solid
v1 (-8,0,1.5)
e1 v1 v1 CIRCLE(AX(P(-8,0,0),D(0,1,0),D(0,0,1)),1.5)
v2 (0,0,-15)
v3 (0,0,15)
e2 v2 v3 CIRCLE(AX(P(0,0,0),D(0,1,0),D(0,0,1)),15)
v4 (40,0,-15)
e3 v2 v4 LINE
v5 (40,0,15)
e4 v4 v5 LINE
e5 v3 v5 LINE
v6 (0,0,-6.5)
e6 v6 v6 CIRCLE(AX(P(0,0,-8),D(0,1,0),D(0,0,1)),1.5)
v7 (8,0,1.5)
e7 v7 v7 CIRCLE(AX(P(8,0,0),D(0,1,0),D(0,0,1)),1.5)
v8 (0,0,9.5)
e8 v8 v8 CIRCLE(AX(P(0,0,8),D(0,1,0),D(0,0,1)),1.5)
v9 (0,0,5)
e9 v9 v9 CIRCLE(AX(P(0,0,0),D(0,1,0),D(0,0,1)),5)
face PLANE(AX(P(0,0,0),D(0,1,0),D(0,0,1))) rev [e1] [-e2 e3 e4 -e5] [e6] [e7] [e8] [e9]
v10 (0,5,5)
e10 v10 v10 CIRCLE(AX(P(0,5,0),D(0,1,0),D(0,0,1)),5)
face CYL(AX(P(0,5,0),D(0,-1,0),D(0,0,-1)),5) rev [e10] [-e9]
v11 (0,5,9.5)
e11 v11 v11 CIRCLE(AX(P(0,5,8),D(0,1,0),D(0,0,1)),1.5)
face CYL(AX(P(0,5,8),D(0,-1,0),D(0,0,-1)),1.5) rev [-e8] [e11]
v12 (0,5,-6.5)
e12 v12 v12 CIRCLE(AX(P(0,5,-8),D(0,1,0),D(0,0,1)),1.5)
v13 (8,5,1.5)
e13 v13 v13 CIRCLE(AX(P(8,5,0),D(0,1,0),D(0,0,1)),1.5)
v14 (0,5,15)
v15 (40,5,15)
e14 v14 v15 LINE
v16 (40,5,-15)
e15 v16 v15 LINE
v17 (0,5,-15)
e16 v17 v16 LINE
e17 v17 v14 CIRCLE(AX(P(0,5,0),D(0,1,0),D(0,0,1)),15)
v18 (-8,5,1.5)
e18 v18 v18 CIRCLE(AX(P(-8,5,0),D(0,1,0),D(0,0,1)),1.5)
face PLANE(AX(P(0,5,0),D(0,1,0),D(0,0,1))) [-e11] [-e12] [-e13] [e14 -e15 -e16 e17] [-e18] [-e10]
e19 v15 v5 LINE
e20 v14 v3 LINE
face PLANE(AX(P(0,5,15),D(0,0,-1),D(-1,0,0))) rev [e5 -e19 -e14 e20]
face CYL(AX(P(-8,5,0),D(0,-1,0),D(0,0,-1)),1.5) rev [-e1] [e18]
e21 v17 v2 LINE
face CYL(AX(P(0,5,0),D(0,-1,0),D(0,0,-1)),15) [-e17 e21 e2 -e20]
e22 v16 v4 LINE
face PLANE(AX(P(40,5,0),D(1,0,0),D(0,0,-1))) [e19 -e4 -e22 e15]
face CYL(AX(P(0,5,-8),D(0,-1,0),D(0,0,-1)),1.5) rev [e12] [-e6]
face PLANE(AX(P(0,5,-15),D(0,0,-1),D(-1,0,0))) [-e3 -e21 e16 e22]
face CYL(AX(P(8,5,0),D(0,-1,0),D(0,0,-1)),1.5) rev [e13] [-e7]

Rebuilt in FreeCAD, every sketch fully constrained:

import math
import FreeCAD as App
import Part
import Sketcher

V = App.Vector
Q = App.Units.Quantity

doc = App.newDocument("Part")
body = doc.addObject("PartDesign::Body", "Body")

# Sketch on XZ plane
sketch1 = body.newObject("Sketcher::SketchObject", "Sketch")
sketch1.AttachmentSupport = (doc.getObject("XZ_Plane"), [""])
sketch1.MapMode = "FlatFace"
sketch1.addGeometry([
    Part.ArcOfCircle(Part.Circle(V(0, 0, 0), V(0, 0, 1), 15), math.radians(90), math.radians(270)),  # 0
    Part.LineSegment(V(0, 15, 0), V(40, 15, 0)),  # 1
    Part.LineSegment(V(40, 15, 0), V(40, -15, 0)),  # 2
    Part.LineSegment(V(40, -15, 0), V(0, -15, 0)),  # 3
    Part.ArcOfCircle(Part.Circle(V(0, -8, 0), V(0, 0, 1), 1.5), math.radians(175), math.radians(270)),  # 4
    Part.ArcOfCircle(Part.Circle(V(0, -8, 0), V(0, 0, 1), 1.5), math.radians(-90), math.radians(0)),  # 5
    Part.ArcOfCircle(Part.Circle(V(0, -8, 0), V(0, 0, 1), 1.5), math.radians(0), math.radians(5.38)),  # 6
    Part.ArcOfCircle(Part.Circle(V(0, -8, 0), V(0, 0, 1), 1.5), math.radians(5), math.radians(90)),  # 7
    Part.ArcOfCircle(Part.Circle(V(0, -8, 0), V(0, 0, 1), 1.5), math.radians(90), math.radians(175)),  # 8
    Part.ArcOfCircle(Part.Circle(V(8, 0, 0), V(0, 0, 1), 1.5), math.radians(-95), math.radians(0)),  # 9
    Part.ArcOfCircle(Part.Circle(V(8, 0, 0), V(0, 0, 1), 1.5), math.radians(0), math.radians(95)),  # 10
    Part.ArcOfCircle(Part.Circle(V(8, 0, 0), V(0, 0, 1), 1.5), math.radians(95), math.radians(265)),  # 11
    Part.ArcOfCircle(Part.Circle(V(0, 8, 0), V(0, 0, 1), 1.5), math.radians(-5.38), math.radians(0)),  # 12
    Part.ArcOfCircle(Part.Circle(V(0, 8, 0), V(0, 0, 1), 1.5), math.radians(0), math.radians(90)),  # 13
    Part.ArcOfCircle(Part.Circle(V(0, 8, 0), V(0, 0, 1), 1.5), math.radians(90), math.radians(185)),  # 14
    Part.ArcOfCircle(Part.Circle(V(0, 8, 0), V(0, 0, 1), 1.5), math.radians(-175), math.radians(-90)),  # 15
    Part.ArcOfCircle(Part.Circle(V(0, 8, 0), V(0, 0, 1), 1.5), math.radians(-90), math.radians(-5)),  # 16
    Part.ArcOfCircle(Part.Circle(V(0, 0, 0), V(0, 0, 1), 5), math.radians(90), math.radians(270)),  # 17
    Part.ArcOfCircle(Part.Circle(V(0, 0, 0), V(0, 0, 1), 5), math.radians(-90), math.radians(0)),  # 18
    Part.ArcOfCircle(Part.Circle(V(0, 0, 0), V(0, 0, 1), 5), math.radians(0), math.radians(90)),  # 19
    Part.ArcOfCircle(Part.Circle(V(-8, 0, 0), V(0, 0, 1), 1.5), math.radians(85), math.radians(275)),  # 20
    Part.ArcOfCircle(Part.Circle(V(-8, 0, 0), V(0, 0, 1), 1.5), math.radians(-85), math.radians(0)),  # 21
    Part.ArcOfCircle(Part.Circle(V(-8, 0, 0), V(0, 0, 1), 1.5), math.radians(0), math.radians(85)),  # 22
], False)
sketch1.addConstraint([
    Sketcher.Constraint("Tangent", 0, 1, 1, 1),
    Sketcher.Constraint("Coincident", 1, 2, 2, 1),
    Sketcher.Constraint("Coincident", 2, 2, 3, 1),
    Sketcher.Constraint("Tangent", 3, 2, 0, 2),
    Sketcher.Constraint("Tangent", 4, 2, 5, 1),
    Sketcher.Constraint("Tangent", 5, 2, 6, 1),
    Sketcher.Constraint("Tangent", 6, 2, 7, 1),
    Sketcher.Constraint("Tangent", 7, 2, 8, 1),
    Sketcher.Constraint("Tangent", 8, 2, 4, 1),
    Sketcher.Constraint("Tangent", 9, 2, 10, 1),
    Sketcher.Constraint("Tangent", 10, 2, 11, 1),
    Sketcher.Constraint("Tangent", 11, 2, 9, 1),
    Sketcher.Constraint("Tangent", 12, 2, 13, 1),
    Sketcher.Constraint("Tangent", 13, 2, 14, 1),
    Sketcher.Constraint("Tangent", 14, 2, 15, 1),
    Sketcher.Constraint("Tangent", 15, 2, 16, 1),
    Sketcher.Constraint("Tangent", 16, 2, 12, 1),
    Sketcher.Constraint("Tangent", 17, 2, 18, 1),
    Sketcher.Constraint("Tangent", 18, 2, 19, 1),
    Sketcher.Constraint("Tangent", 19, 2, 17, 1),
    Sketcher.Constraint("Tangent", 20, 2, 21, 1),
    Sketcher.Constraint("Tangent", 21, 2, 22, 1),
    Sketcher.Constraint("Tangent", 22, 2, 20, 1),
    Sketcher.Constraint("Horizontal", 1),
    Sketcher.Constraint("Vertical", 2),
    Sketcher.Constraint("Horizontal", 3),
    Sketcher.Constraint("Coincident", 0, 3, -1, 1),
    Sketcher.Constraint("Coincident", 17, 3, -1, 1),
    Sketcher.Constraint("Coincident", 6, 3, 4, 3),
    Sketcher.Constraint("Coincident", 14, 3, 12, 3),
    Sketcher.Constraint("Equal", 8, 9),
    Sketcher.Constraint("Equal", 11, 12),
    Sketcher.Constraint("Equal", 16, 20),
    Sketcher.Constraint("Symmetric", 4, 3, 12, 3, -1, 1),
    Sketcher.Constraint("Symmetric", 9, 3, 20, 3, -1, 1),
    Sketcher.Constraint("Symmetric", 6, 2, 8, 2, -2),
    Sketcher.Constraint("Symmetric", 11, 2, 20, 2, -2),
    Sketcher.Constraint("PointOnObject", 4, 2, -2),
    Sketcher.Constraint("PointOnObject", 7, 2, -2),
    Sketcher.Constraint("PointOnObject", 9, 2, -1),
    Sketcher.Constraint("PointOnObject", 13, 2, -2),
    Sketcher.Constraint("PointOnObject", 15, 2, -2),
    Sketcher.Constraint("PointOnObject", 17, 2, -2),
    Sketcher.Constraint("PointOnObject", 18, 2, -1),
    Sketcher.Constraint("PointOnObject", 19, 2, -2),
    Sketcher.Constraint("PointOnObject", 21, 2, -1),
    Sketcher.Constraint("Horizontal", 8, 3, 5, 2),
    Sketcher.Constraint("Horizontal", 16, 3, 12, 2),
    Sketcher.Constraint("Horizontal", 14, 2, 16, 2),
    Sketcher.Constraint("Horizontal", 10, 2, 22, 2),
    Sketcher.Constraint("Vertical", 10, 2, 11, 2),
    Sketcher.Constraint("Vertical", 8, 2, 14, 2),
    Sketcher.Constraint("Radius", 0, Q("15 mm")),
    Sketcher.Constraint("Radius", 17, Q("5 mm")),
    Sketcher.Constraint("Radius", 4, Q("1.5 mm")),
    Sketcher.Constraint("DistanceX", 1, 1, 1, 2, Q("40 mm")),
    Sketcher.Constraint("DistanceY", 4, 3, -1, 1, Q("8 mm")),
    Sketcher.Constraint("DistanceX", -1, 1, 9, 3, Q("8 mm")),
    Sketcher.Constraint("DistanceX", -1, 1, 6, 2, Q("1.493394 mm")),
    Sketcher.Constraint("DistanceX", -1, 1, 10, 2, Q("7.859375 mm")),
])
pad1 = body.newObject("PartDesign::Pad", "Pad")
pad1.Profile = sketch1
pad1.Length = 5
pad1.Reversed = True

doc.recompute()
